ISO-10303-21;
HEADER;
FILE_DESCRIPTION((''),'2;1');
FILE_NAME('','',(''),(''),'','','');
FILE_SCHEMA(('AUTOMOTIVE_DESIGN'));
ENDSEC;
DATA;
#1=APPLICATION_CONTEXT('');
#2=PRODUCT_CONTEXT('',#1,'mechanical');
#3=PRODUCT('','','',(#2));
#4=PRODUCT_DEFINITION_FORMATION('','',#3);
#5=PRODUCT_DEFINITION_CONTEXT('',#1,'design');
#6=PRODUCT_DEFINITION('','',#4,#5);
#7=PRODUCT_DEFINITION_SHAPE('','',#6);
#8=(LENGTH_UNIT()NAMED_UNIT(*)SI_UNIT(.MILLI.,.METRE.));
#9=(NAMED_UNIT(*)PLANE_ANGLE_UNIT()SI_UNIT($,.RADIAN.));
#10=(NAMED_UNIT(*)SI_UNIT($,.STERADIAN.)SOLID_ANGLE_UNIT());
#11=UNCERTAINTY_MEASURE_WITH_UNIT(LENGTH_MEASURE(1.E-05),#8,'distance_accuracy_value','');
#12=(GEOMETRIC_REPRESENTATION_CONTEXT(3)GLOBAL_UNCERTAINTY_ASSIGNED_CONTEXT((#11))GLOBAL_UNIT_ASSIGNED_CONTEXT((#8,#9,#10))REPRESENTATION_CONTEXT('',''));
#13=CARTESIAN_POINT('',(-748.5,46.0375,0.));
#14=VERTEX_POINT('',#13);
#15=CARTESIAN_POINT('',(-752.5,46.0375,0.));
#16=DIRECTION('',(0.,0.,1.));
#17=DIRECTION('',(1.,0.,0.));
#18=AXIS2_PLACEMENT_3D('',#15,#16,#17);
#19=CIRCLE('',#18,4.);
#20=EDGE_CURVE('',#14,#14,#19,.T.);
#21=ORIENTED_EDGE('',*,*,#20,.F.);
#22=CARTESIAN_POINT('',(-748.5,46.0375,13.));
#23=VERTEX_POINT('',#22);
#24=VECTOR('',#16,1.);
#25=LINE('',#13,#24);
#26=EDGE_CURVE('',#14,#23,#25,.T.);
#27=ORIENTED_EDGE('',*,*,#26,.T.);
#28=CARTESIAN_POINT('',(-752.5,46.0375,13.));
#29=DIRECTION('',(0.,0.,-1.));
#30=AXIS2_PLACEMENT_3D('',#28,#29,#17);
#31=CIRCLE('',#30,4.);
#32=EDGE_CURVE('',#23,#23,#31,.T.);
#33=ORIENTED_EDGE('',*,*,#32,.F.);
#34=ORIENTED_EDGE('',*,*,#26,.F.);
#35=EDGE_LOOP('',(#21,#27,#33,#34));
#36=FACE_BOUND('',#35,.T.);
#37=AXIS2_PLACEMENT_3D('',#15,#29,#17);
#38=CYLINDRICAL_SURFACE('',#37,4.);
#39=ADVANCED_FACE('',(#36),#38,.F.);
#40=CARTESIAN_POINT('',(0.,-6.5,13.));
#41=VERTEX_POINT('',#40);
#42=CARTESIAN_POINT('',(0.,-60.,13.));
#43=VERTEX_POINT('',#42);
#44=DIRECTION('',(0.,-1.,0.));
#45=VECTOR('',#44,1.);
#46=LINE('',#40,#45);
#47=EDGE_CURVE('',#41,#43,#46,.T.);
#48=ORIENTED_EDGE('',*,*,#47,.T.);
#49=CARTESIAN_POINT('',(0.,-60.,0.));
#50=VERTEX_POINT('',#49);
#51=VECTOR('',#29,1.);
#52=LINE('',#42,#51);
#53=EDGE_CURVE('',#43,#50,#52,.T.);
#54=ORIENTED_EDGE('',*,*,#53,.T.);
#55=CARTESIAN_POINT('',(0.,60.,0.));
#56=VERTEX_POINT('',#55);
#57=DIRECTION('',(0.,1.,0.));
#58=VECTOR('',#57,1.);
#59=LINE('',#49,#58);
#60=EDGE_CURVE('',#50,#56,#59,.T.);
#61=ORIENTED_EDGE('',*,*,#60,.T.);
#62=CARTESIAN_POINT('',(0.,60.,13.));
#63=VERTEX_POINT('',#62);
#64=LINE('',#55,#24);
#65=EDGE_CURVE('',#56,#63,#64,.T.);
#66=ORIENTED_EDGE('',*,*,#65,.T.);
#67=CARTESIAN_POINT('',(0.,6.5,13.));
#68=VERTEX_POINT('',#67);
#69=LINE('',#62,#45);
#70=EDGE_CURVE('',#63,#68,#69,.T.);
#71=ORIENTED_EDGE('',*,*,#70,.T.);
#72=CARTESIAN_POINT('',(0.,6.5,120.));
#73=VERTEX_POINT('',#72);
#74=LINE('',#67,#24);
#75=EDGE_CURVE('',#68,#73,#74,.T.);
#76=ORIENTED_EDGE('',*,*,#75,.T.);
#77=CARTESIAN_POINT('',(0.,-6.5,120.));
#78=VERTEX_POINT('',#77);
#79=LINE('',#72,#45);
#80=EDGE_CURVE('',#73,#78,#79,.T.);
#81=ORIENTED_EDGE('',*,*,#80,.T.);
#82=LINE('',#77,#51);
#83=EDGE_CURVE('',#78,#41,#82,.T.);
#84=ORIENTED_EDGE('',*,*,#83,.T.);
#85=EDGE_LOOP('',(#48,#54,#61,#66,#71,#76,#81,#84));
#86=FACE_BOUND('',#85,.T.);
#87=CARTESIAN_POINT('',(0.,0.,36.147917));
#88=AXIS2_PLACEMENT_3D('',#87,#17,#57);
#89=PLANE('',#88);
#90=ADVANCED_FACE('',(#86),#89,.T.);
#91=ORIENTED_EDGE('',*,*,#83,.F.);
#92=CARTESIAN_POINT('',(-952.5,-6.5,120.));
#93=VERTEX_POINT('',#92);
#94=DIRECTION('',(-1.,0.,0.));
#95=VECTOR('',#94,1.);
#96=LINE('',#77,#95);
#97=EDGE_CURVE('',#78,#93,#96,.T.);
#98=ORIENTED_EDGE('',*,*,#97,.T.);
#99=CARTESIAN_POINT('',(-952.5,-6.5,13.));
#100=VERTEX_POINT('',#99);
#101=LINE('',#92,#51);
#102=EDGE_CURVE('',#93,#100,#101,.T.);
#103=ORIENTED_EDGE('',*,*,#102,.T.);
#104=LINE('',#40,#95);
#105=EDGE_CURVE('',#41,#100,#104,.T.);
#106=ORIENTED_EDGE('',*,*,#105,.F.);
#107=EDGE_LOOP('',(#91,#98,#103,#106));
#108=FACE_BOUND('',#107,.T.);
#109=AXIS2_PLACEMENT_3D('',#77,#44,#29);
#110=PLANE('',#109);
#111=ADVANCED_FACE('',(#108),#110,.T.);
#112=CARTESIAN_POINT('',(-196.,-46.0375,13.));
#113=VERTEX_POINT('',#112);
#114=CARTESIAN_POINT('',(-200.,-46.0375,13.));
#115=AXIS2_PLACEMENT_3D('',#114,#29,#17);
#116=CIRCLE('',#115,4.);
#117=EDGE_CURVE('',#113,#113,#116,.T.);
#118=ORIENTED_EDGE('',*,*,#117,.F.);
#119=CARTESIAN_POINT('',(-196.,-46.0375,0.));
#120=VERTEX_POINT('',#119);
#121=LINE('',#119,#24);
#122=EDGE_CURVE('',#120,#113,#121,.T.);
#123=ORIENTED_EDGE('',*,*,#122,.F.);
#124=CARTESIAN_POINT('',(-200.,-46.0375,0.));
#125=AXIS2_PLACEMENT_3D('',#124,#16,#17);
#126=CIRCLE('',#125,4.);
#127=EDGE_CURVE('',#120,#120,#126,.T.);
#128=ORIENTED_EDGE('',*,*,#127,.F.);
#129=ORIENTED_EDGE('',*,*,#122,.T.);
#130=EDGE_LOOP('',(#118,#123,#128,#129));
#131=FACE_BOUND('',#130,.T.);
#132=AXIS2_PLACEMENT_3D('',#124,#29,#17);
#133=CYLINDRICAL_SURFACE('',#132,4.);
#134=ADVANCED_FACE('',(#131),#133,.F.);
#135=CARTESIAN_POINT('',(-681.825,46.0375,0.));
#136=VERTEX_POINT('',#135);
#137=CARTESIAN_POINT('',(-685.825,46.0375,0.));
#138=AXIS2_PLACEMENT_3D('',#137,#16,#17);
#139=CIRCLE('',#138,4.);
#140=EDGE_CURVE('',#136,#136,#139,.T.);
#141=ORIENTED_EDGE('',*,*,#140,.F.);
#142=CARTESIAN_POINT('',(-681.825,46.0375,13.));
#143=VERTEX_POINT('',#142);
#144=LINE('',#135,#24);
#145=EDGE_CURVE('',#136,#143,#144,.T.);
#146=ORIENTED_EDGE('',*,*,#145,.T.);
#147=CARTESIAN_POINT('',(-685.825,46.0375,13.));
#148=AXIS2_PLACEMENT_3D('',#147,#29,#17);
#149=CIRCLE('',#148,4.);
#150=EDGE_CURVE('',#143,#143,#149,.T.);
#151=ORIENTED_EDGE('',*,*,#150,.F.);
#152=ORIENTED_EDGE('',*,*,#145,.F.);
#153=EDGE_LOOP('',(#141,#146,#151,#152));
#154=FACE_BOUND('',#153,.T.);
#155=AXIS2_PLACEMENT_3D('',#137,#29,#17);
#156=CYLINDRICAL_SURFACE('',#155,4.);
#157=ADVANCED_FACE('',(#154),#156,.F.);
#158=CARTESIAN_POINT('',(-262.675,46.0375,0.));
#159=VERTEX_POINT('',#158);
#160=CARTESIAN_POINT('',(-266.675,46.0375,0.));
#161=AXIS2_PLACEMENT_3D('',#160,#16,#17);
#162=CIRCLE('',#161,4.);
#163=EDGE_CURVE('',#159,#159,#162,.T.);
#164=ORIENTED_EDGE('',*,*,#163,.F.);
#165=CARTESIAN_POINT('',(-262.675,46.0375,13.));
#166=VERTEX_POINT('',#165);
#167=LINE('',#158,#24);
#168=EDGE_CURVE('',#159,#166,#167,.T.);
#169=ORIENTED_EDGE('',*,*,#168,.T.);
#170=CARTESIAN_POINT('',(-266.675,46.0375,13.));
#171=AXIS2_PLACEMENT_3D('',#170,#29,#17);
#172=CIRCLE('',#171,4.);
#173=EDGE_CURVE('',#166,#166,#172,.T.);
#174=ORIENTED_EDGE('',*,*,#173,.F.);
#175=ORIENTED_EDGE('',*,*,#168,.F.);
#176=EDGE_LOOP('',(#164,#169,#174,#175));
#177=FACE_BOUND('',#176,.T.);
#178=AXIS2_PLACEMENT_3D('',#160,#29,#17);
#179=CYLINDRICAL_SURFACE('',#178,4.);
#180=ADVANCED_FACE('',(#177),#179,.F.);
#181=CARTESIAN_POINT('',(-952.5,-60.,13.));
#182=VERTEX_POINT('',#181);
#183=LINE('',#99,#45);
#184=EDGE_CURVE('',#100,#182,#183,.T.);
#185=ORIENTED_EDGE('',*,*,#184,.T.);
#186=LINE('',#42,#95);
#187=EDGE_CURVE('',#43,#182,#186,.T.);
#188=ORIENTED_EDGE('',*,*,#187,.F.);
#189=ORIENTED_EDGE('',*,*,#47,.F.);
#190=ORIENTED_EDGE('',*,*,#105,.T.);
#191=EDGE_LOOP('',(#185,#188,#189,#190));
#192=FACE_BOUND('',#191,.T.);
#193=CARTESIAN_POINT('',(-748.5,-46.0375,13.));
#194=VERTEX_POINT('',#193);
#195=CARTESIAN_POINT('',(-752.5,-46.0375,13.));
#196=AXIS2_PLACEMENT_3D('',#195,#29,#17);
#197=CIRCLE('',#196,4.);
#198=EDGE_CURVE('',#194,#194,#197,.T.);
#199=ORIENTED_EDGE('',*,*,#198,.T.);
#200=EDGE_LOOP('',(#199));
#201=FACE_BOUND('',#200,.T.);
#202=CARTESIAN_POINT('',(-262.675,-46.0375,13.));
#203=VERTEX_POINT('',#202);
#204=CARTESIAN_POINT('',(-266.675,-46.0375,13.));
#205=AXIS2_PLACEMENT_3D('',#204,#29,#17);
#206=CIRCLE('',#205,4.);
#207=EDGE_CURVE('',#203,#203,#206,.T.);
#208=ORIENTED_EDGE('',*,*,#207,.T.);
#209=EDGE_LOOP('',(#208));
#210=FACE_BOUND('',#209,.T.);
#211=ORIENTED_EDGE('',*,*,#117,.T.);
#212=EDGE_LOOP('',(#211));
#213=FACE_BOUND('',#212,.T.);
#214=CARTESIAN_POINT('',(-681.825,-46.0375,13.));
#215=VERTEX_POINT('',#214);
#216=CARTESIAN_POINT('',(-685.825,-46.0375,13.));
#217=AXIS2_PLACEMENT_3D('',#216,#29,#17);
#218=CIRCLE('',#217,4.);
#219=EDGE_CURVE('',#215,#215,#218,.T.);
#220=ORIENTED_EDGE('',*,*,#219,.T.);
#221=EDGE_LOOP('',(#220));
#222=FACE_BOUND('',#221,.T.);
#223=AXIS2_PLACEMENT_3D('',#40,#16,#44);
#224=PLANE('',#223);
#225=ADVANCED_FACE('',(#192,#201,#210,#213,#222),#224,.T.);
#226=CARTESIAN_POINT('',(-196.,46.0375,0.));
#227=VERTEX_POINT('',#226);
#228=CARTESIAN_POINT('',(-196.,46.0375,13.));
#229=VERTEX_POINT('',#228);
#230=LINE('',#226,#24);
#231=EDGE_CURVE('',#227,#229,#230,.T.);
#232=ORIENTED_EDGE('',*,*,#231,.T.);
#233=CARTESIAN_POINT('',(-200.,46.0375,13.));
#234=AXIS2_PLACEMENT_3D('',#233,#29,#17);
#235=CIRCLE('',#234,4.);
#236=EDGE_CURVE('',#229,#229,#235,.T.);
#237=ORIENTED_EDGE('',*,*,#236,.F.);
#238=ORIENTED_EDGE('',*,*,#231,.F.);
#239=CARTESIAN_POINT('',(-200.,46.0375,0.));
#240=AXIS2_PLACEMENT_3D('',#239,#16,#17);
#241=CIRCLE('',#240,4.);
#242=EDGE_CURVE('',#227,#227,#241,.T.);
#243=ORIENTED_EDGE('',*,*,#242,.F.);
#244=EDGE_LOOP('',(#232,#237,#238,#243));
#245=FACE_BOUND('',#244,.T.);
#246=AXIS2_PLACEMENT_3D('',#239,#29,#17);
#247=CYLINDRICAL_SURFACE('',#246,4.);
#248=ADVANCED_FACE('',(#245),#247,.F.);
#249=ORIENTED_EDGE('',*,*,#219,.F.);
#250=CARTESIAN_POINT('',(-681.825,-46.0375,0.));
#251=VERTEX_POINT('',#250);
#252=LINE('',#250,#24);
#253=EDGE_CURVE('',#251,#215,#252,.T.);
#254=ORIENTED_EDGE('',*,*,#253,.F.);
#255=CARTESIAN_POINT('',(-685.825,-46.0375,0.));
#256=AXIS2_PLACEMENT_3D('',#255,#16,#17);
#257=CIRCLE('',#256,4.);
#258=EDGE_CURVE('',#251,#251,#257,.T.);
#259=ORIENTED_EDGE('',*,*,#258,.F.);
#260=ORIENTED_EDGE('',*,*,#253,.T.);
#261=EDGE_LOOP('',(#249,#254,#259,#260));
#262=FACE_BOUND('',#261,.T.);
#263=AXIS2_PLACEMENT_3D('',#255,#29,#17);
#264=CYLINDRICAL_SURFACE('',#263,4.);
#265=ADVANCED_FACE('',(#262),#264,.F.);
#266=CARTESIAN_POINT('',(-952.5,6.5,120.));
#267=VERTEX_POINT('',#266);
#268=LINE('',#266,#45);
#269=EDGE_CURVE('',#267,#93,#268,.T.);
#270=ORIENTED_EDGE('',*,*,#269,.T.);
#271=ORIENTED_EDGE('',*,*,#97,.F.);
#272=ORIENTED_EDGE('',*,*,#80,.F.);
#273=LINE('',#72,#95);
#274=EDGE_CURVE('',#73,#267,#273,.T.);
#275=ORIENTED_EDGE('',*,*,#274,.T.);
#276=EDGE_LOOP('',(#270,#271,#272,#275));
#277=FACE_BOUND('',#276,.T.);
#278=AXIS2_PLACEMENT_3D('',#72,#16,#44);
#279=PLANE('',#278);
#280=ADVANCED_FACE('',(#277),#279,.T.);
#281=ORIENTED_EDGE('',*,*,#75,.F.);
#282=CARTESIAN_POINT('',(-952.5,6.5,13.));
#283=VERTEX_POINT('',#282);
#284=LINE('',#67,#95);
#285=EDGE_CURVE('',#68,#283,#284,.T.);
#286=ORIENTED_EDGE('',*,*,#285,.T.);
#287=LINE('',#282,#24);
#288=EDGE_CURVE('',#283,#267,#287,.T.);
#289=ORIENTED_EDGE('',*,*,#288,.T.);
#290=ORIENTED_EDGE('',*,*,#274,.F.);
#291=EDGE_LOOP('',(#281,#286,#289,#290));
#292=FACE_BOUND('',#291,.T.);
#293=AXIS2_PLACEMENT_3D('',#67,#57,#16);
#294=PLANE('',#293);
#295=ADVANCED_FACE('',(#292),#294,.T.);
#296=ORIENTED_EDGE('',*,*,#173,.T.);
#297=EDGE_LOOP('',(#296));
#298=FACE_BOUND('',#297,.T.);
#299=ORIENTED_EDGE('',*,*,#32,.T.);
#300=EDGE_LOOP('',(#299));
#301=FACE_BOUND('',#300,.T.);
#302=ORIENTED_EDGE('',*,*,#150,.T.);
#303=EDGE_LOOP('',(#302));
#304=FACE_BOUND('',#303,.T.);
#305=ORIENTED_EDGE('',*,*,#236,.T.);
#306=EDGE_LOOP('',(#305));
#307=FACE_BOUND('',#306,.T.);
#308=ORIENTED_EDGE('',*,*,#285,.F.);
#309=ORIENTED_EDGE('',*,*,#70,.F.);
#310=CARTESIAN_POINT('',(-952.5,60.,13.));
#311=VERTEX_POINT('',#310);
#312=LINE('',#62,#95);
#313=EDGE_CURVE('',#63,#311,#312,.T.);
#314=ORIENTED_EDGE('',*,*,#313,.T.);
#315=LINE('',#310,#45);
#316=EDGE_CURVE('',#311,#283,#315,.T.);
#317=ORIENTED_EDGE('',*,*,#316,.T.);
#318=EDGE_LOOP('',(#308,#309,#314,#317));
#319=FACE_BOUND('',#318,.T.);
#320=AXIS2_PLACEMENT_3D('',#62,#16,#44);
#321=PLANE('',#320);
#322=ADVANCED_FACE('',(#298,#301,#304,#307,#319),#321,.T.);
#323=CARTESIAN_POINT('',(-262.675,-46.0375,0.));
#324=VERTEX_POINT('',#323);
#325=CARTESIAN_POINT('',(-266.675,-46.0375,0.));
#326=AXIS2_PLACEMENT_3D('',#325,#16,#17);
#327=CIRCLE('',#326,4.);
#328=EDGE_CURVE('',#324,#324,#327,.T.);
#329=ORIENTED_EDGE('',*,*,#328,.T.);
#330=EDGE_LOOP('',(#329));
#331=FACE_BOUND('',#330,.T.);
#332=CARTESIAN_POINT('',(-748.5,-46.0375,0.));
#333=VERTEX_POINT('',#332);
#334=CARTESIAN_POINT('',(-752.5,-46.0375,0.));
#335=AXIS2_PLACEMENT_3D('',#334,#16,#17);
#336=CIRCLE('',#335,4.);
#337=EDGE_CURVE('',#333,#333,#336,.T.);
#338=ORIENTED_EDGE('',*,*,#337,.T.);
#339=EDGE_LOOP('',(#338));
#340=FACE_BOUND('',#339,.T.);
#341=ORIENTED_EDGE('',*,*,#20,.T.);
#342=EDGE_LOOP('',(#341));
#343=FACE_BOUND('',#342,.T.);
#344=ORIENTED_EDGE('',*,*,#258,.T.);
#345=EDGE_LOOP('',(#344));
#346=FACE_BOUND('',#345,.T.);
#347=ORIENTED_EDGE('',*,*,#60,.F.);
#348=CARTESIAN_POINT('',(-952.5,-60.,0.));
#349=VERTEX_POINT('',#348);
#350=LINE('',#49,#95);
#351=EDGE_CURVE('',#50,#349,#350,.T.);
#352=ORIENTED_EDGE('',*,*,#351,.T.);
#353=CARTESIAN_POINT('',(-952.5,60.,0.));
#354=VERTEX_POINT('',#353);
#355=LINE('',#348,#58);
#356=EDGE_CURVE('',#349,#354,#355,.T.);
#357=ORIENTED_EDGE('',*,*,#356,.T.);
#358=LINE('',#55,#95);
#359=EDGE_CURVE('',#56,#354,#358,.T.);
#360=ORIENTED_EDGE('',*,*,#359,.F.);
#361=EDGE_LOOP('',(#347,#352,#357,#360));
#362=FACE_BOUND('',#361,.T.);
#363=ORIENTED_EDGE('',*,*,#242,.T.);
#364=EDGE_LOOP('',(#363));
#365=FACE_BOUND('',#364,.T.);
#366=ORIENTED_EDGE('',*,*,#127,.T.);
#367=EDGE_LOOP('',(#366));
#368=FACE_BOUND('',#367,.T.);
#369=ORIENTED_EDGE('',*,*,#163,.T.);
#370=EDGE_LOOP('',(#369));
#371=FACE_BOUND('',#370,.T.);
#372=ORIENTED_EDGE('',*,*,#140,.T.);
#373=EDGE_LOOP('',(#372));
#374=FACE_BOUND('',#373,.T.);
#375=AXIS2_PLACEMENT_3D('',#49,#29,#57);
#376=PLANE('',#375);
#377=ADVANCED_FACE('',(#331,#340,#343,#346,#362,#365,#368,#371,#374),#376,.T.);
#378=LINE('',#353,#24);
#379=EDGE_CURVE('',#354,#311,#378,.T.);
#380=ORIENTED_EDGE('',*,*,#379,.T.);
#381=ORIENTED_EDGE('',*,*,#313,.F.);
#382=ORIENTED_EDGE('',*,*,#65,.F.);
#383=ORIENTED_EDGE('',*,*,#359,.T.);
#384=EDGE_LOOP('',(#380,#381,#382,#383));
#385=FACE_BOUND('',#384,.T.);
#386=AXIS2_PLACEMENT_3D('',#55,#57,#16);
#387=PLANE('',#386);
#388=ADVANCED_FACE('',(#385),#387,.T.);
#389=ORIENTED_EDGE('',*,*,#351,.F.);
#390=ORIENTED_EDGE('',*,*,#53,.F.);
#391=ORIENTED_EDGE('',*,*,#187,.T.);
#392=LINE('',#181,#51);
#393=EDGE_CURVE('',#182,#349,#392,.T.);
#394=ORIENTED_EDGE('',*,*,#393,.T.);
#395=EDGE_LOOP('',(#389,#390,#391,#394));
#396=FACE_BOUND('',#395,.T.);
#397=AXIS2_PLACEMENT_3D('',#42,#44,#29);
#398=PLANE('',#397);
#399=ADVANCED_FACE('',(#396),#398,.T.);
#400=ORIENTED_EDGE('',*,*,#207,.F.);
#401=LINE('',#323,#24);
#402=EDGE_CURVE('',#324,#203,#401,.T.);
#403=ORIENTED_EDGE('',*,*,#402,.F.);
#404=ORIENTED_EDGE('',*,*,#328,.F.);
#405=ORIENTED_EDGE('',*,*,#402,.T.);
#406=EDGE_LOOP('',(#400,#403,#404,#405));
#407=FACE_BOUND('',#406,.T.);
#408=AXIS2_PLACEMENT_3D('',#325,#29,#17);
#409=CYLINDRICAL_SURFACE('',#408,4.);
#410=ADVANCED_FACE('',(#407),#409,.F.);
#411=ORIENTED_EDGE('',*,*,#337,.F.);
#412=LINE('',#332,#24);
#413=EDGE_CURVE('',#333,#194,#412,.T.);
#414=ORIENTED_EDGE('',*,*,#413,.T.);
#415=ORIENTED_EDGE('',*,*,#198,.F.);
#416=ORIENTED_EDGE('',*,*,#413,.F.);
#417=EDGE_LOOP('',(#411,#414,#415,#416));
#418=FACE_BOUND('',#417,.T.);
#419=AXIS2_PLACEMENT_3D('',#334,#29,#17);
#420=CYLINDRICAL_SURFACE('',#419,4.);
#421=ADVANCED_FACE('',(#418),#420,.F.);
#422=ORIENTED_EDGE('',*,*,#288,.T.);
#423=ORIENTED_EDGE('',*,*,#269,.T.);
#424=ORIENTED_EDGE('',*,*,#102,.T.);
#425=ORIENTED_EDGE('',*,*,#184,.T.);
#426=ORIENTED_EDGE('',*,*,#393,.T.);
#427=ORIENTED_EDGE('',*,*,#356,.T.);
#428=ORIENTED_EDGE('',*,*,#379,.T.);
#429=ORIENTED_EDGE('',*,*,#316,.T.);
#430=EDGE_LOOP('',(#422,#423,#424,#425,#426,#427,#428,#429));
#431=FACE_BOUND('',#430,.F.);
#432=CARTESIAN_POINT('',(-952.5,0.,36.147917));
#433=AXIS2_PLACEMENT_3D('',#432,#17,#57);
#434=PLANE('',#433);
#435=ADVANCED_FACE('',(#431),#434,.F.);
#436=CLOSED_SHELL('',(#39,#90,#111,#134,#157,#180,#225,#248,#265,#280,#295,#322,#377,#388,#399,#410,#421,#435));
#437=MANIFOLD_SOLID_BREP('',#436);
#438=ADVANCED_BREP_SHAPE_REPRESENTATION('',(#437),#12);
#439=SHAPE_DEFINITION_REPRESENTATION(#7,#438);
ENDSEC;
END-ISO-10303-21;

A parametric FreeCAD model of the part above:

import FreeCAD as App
import Part
import Sketcher
from FreeCAD import Vector
Q = App.Units.Quantity

doc = App.newDocument("Part")
body = doc.addObject("PartDesign::Body", "Body")

# Sketch on YZ plane
sketch1 = doc.addObject("Sketcher::SketchObject", "Sketch")
body.addObject(sketch1)
sketch1.AttachmentSupport = (doc.YZ_Plane, [""])
sketch1.MapMode = "FlatFace"
sketch1.addGeometry(Part.LineSegment(Vector(-60, 13, 0), Vector(-60, 0, 0)), False)
sketch1.addGeometry(Part.LineSegment(Vector(-60, 0, 0), Vector(60, 0, 0)), False)
sketch1.addGeometry(Part.LineSegment(Vector(60, 0, 0), Vector(60, 13, 0)), False)
sketch1.addGeometry(Part.LineSegment(Vector(60, 13, 0), Vector(6, 13, 0)), False)
sketch1.addGeometry(Part.LineSegment(Vector(6, 13, 0), Vector(6, 120, 0)), False)
sketch1.addGeometry(Part.LineSegment(Vector(6, 120, 0), Vector(-6, 120, 0)), False)
sketch1.addGeometry(Part.LineSegment(Vector(-6, 120, 0), Vector(-6, 13, 0)), False)
sketch1.addGeometry(Part.LineSegment(Vector(-6, 13, 0), Vector(-60, 13, 0)), False)
sketch1.addConstraint(Sketcher.Constraint("Coincident", 0, 2, 1, 1))
sketch1.addConstraint(Sketcher.Constraint("Coincident", 1, 2, 2, 1))
sketch1.addConstraint(Sketcher.Constraint("Coincident", 2, 2, 3, 1))
sketch1.addConstraint(Sketcher.Constraint("Coincident", 3, 2, 4, 1))
sketch1.addConstraint(Sketcher.Constraint("Coincident", 4, 2, 5, 1))
sketch1.addConstraint(Sketcher.Constraint("Coincident", 5, 2, 6, 1))
sketch1.addConstraint(Sketcher.Constraint("Coincident", 6, 2, 7, 1))
sketch1.addConstraint(Sketcher.Constraint("Coincident", 7, 2, 0, 1))
sketch1.addConstraint(Sketcher.Constraint("Vertical", 0))
sketch1.addConstraint(Sketcher.Constraint("Horizontal", 1))
sketch1.addConstraint(Sketcher.Constraint("Vertical", 2))
sketch1.addConstraint(Sketcher.Constraint("Horizontal", 3))
sketch1.addConstraint(Sketcher.Constraint("Vertical", 4))
sketch1.addConstraint(Sketcher.Constraint("Horizontal", 5))
sketch1.addConstraint(Sketcher.Constraint("Vertical", 6))
sketch1.addConstraint(Sketcher.Constraint("Horizontal", 7))
sketch1.addConstraint(Sketcher.Constraint("Symmetric", 0, 2, 1, 2, -1, 1))
sketch1.addConstraint(Sketcher.Constraint("Symmetric", 3, 2, 6, 2, -2))
sketch1.addConstraint(Sketcher.Constraint("Equal", 5, 0))
sketch1.addConstraint(Sketcher.Constraint("DistanceX", 1, 1, 1, 2, Q("120 mm")))
sketch1.addConstraint(Sketcher.Constraint("DistanceX", 5, 2, 5, 1, Q("13 mm")))
sketch1.addConstraint(Sketcher.Constraint("DistanceY", 4, 1, 4, 2, Q("107 mm")))
pad1 = doc.addObject("PartDesign::Pad", "Pad")
body.addObject(pad1)
pad1.Profile = sketch1
pad1.Length = 952.5
pad1.Reversed = True

# Sketch on XY plane
sketch2 = doc.addObject("Sketcher::SketchObject", "Sketch001")
body.addObject(sketch2)
sketch2.AttachmentSupport = (doc.XY_Plane, [""])
sketch2.MapMode = "FlatFace"
sketch2.addGeometry(Part.Circle(Vector(-200, -46, 0), Vector(0, 0, 1), 4), False)
sketch2.addGeometry(Part.Circle(Vector(-200, 46, 0), Vector(0, 0, 1), 4), False)
sketch2.addGeometry(Part.Circle(Vector(-266.7, 46, 0), Vector(0, 0, 1), 4), False)
sketch2.addGeometry(Part.Circle(Vector(-266.7, -46, 0), Vector(0, 0, 1), 4), False)
sketch2.addGeometry(Part.Circle(Vector(-752.5, -46, 0), Vector(0, 0, 1), 4), False)
sketch2.addGeometry(Part.Circle(Vector(-685.8, -46, 0), Vector(0, 0, 1), 4), False)
sketch2.addGeometry(Part.Circle(Vector(-685.8, 46, 0), Vector(0, 0, 1), 4), False)
sketch2.addGeometry(Part.Circle(Vector(-752.5, 46, 0), Vector(0, 0, 1), 4), False)
sketch2.addConstraint(Sketcher.Constraint("Equal", 0, 1))
sketch2.addConstraint(Sketcher.Constraint("Equal", 1, 2))
sketch2.addConstraint(Sketcher.Constraint("Equal", 2, 3))
sketch2.addConstraint(Sketcher.Constraint("Equal", 3, 4))
sketch2.addConstraint(Sketcher.Constraint("Equal", 4, 5))
sketch2.addConstraint(Sketcher.Constraint("Equal", 5, 6))
sketch2.addConstraint(Sketcher.Constraint("Equal", 6, 7))
sketch2.addConstraint(Sketcher.Constraint("Symmetric", 0, 3, 1, 3, -1))
sketch2.addConstraint(Sketcher.Constraint("Symmetric", 2, 3, 3, 3, -1))
sketch2.addConstraint(Sketcher.Constraint("Symmetric", 5, 3, 6, 3, -1))
sketch2.addConstraint(Sketcher.Constraint("Symmetric", 4, 3, 7, 3, -1))
sketch2.addConstraint(Sketcher.Constraint("Horizontal", 1, 3, 2, 3))
sketch2.addConstraint(Sketcher.Constraint("Horizontal", 3, 3, 4, 3))
sketch2.addConstraint(Sketcher.Constraint("Horizontal", 4, 3, 5, 3))
sketch2.addConstraint(Sketcher.Constraint("Diameter", 0, Q("8 mm")))
sketch2.addConstraint(Sketcher.Constraint("DistanceX", 0, 3, -1, 1, Q("200 mm")))
sketch2.addConstraint(Sketcher.Constraint("DistanceX", 4, 3, -1, 1, Q("752.5 mm")))
sketch2.addConstraint(Sketcher.Constraint("DistanceX", 5, 3, 3, 3, Q("419.15 mm")))
sketch2.addConstraint(Sketcher.Constraint("DistanceX", 2, 3, -1, 1, Q("266.675 mm")))
sketch2.addConstraint(Sketcher.Constraint("DistanceY", 0, 3, 1, 3, Q("92.075 mm")))
pocket1 = doc.addObject("PartDesign::Pocket", "Pocket")
body.addObject(pocket1)
pocket1.Profile = sketch2
pocket1.Type = "ThroughAll"
pocket1.Reversed = True

doc.recompute()
